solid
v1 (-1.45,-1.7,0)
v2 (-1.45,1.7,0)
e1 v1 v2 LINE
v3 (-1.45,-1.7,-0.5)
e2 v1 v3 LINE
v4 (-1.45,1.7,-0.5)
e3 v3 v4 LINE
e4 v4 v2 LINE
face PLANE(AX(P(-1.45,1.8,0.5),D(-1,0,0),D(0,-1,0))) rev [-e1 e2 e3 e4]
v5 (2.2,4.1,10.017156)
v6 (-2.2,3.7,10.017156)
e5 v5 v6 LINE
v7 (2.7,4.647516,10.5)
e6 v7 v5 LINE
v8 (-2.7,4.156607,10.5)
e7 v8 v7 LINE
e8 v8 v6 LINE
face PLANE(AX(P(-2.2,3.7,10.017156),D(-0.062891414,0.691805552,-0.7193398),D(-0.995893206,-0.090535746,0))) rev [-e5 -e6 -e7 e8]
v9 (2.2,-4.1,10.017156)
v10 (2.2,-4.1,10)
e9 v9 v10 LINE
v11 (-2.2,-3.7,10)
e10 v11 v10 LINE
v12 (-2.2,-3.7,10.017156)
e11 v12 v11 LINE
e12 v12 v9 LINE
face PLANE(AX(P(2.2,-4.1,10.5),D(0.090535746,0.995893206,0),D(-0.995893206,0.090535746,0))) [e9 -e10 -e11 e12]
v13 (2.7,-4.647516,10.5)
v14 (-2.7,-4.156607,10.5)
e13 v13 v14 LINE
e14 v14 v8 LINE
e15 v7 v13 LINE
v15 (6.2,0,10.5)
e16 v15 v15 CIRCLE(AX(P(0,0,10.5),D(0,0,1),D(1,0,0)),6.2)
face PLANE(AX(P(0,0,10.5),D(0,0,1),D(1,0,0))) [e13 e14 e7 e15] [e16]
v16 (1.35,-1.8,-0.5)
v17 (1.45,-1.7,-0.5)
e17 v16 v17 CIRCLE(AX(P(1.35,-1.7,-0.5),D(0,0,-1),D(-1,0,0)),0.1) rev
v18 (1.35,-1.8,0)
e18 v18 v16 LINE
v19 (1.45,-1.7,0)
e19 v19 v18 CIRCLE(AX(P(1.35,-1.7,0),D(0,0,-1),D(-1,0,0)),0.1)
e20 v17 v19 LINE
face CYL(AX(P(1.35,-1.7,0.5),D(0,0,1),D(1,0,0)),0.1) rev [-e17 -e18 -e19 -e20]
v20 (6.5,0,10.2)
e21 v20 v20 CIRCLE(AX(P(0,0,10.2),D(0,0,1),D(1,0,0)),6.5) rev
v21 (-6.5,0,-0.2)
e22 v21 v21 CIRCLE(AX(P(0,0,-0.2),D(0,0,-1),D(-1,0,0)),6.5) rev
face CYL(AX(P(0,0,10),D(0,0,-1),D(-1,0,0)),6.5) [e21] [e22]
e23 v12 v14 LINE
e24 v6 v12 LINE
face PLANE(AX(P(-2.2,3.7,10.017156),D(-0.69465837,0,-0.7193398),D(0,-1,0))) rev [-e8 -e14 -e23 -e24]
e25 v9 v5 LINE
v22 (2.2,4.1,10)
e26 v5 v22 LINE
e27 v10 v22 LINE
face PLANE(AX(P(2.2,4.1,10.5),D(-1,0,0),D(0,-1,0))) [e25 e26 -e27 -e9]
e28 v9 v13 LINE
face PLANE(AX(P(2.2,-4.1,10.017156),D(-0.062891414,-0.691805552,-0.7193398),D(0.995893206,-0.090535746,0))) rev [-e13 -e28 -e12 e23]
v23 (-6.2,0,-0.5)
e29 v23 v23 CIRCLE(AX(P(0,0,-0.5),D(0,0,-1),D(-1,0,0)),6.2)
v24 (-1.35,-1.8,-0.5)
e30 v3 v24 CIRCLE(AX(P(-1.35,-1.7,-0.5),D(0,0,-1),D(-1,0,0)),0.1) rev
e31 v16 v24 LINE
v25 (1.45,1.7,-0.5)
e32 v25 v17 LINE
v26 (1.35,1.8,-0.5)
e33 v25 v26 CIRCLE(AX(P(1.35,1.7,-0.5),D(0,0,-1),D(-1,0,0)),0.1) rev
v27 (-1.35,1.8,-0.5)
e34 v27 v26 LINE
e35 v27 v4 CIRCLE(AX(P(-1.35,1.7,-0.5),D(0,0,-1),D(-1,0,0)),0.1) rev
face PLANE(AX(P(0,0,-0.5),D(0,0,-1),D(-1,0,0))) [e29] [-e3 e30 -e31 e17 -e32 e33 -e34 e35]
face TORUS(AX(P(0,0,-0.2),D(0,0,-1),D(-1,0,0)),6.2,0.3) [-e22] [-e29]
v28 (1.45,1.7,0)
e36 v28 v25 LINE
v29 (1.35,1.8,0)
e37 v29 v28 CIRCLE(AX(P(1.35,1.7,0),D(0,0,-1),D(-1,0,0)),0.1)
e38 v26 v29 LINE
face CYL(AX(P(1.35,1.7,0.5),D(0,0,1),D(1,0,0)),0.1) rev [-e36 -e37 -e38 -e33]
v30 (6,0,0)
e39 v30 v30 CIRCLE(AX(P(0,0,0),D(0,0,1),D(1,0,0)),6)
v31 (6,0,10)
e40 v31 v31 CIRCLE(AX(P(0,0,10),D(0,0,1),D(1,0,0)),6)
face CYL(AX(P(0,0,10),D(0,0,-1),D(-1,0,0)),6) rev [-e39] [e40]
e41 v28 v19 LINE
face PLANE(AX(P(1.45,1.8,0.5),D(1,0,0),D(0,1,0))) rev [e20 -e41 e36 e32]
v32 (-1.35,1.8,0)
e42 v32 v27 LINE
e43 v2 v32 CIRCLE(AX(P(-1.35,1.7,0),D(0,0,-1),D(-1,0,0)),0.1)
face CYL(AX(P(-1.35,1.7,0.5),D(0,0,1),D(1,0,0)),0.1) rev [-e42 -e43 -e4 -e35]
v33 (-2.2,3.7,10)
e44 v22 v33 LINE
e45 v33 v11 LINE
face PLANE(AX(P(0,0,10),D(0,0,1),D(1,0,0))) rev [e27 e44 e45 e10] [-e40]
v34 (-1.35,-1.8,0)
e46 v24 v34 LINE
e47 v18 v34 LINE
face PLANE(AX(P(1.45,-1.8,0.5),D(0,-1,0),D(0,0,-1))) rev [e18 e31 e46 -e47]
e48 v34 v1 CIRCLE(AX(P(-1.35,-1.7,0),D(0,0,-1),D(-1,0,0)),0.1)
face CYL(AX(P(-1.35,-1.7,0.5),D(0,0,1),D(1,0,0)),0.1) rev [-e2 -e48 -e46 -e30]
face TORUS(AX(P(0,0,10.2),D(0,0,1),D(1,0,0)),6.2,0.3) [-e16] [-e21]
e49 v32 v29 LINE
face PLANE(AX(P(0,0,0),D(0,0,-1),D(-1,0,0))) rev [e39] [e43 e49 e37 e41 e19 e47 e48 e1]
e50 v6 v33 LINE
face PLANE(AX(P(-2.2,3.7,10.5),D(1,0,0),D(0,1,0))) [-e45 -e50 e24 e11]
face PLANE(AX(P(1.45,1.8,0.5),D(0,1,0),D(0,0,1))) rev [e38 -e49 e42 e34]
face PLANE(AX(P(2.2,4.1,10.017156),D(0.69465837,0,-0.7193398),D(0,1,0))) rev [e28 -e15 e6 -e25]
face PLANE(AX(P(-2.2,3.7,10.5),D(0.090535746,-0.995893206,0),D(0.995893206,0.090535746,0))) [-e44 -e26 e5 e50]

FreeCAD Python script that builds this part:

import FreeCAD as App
import Part
import Sketcher


def edges_at(feature, points):
    """Names of the edges that pass closest to the given points."""
    edges = feature.Shape.Edges
    near = lambda p: min(range(len(edges)), key=lambda i: edges[i].distToShape(Part.Vertex(*p))[0])
    return sorted({f"Edge{near(p) + 1}" for p in points})

doc = App.newDocument("Part")
body = doc.addObject("PartDesign::Body", "Body")

sketch1 = doc.addObject("Sketcher::SketchObject", "Sketch")
body.addObject(sketch1)
sketch1.AttachmentSupport = (doc.XY_Plane, [""])
sketch1.MapMode = "FlatFace"
sketch1.addGeometry([
    Part.Circle(App.Vector(0, 0, 0), App.Vector(0, 0, 1), 6),
    Part.Circle(App.Vector(0, 0, 0), App.Vector(0, 0, 1), 6),
], False)
sketch1.addConstraint([
    Sketcher.Constraint("Coincident", 0, 3, -1, 1),
    Sketcher.Constraint("Coincident", 1, 3, -1, 1),
    Sketcher.Constraint("Diameter", 0, 13.0),
    Sketcher.Constraint("Diameter", 1, 12.0),
])
pad1 = doc.addObject("PartDesign::Pad", "Pad")
body.addObject(pad1)
pad1.Profile = sketch1
pad1.Length = 10

sketch2 = doc.addObject("Sketcher::SketchObject", "Sketch001")
body.addObject(sketch2)
sketch2.AttachmentSupport = (doc.XY_Plane, [""])
sketch2.MapMode = "FlatFace"
sketch2.AttachmentOffset = App.Placement(App.Vector(0, 0, -0.5), App.Rotation())
sketch2.addGeometry(Part.Circle(App.Vector(0, 0, 0), App.Vector(0, 0, 1), 6), False)
sketch2.addConstraint([
    Sketcher.Constraint("Coincident", 0, 3, -1, 1),
    Sketcher.Constraint("Diameter", 0, 13.0),
])
pad2 = doc.addObject("PartDesign::Pad", "Pad001")
body.addObject(pad2)
pad2.Profile = sketch2
pad2.Length = 0.5

sketch3 = doc.addObject("Sketcher::SketchObject", "Sketch002")
body.addObject(sketch3)
sketch3.AttachmentSupport = (doc.XY_Plane, [""])
sketch3.MapMode = "FlatFace"
sketch3.AttachmentOffset = App.Placement(App.Vector(0, 0, 10), App.Rotation())
sketch3.addGeometry([
    Part.Circle(App.Vector(0, 0, 0), App.Vector(0, 0, 1), 6.5),
    Part.LineSegment(App.Vector(-2.2, -3.7, 0), App.Vector(-2.2, 3.7, 0)),
    Part.LineSegment(App.Vector(-2.2, 3.7, 0), App.Vector(2.2, 4.1, 0)),
    Part.LineSegment(App.Vector(2.2, 4.1, 0), App.Vector(2.2, -4.1, 0)),
    Part.LineSegment(App.Vector(2.2, -4.1, 0), App.Vector(-2.2, -3.7, 0)),
], False)
sketch3.addConstraint([
    Sketcher.Constraint("Coincident", 1, 2, 2, 1),
    Sketcher.Constraint("Coincident", 2, 2, 3, 1),
    Sketcher.Constraint("Coincident", 3, 2, 4, 1),
    Sketcher.Constraint("Coincident", 4, 2, 1, 1),
    Sketcher.Constraint("Vertical", 1),
    Sketcher.Constraint("Vertical", 3),
    Sketcher.Constraint("Coincident", 0, 3, -1, 1),
    Sketcher.Constraint("Equal", 2, 4),
    Sketcher.Constraint("Diameter", 0, 13.0),
    Sketcher.Constraint("DistanceY", 1, 1, 1, 2, 7.4),
    Sketcher.Constraint("DistanceY", 3, 2, 3, 1, 8.2),
    Sketcher.Constraint("DistanceX", 1, 2, -1, 1, 2.2),
    Sketcher.Constraint("DistanceY", -1, 1, 1, 2, 3.7),
    Sketcher.Constraint("DistanceX", -1, 1, 2, 2, 2.2),
])
pad3 = doc.addObject("PartDesign::Pad", "Pad002")
body.addObject(pad3)
pad3.Profile = sketch3
pad3.Length = 0.5
doc.recompute()

chamfer = doc.addObject("PartDesign::Chamfer", "Chamfer")
body.addObject(chamfer)
chamfer.Base = (pad3, edges_at(pad3, [
    (0, -3.9, 10.5),
    (2.2, 0, 10.5),
    (0, 3.9, 10.5),
    (-2.2, 0, 10.5),
]))
chamfer.ChamferType = "Two distances"
chamfer.Size = 0.5
chamfer.Size2 = 0.482844

sketch4 = doc.addObject("Sketcher::SketchObject", "Sketch003")
body.addObject(sketch4)
sketch4.AttachmentSupport = (doc.XY_Plane, [""])
sketch4.MapMode = "FlatFace"
sketch4.AttachmentOffset = App.Placement(App.Vector(0, 0, -0.5), App.Rotation())
sketch4.addGeometry([
    Part.LineSegment(App.Vector(1.4, 1.8, 0), App.Vector(1.4, -1.8, 0)),
    Part.LineSegment(App.Vector(1.4, -1.8, 0), App.Vector(-1.4, -1.8, 0)),
    Part.LineSegment(App.Vector(-1.4, -1.8, 0), App.Vector(-1.4, 1.8, 0)),
    Part.LineSegment(App.Vector(-1.4, 1.8, 0), App.Vector(1.4, 1.8, 0)),
], False)
sketch4.addConstraint([
    Sketcher.Constraint("Coincident", 0, 2, 1, 1),
    Sketcher.Constraint("Coincident", 1, 2, 2, 1),
    Sketcher.Constraint("Coincident", 2, 2, 3, 1),
    Sketcher.Constraint("Coincident", 3, 2, 0, 1),
    Sketcher.Constraint("Vertical", 0),
    Sketcher.Constraint("Horizontal", 1),
    Sketcher.Constraint("Vertical", 2),
    Sketcher.Constraint("Horizontal", 3),
    Sketcher.Constraint("Symmetric", 0, 2, 2, 2, -1, 1),
    Sketcher.Constraint("DistanceX", 1, 2, 1, 1, 2.9),
    Sketcher.Constraint("DistanceY", 0, 2, 0, 1, 3.6),
])
pocket1 = doc.addObject("PartDesign::Pocket", "Pocket")
body.addObject(pocket1)
pocket1.Profile = sketch4
pocket1.Length = 1
pocket1.Reversed = True
doc.recompute()

fillet = doc.addObject("PartDesign::Fillet", "Fillet")
body.addObject(fillet)
fillet.Base = (pocket1, edges_at(pocket1, [
    (-1.45, 1.8, -0.25),
    (-1.45, -1.8, -0.25),
    (1.45, -1.8, -0.25),
    (1.45, 1.8, -0.25),
]))
fillet.Radius = 0.1
doc.recompute()

fillet2 = doc.addObject("PartDesign::Fillet", "Fillet001")
body.addObject(fillet2)
fillet2.Base = (fillet, edges_at(fillet, [(6.5, 0, -0.5), (6.5, 0, 10.5)]))
fillet2.Radius = 0.3

doc.recompute()
